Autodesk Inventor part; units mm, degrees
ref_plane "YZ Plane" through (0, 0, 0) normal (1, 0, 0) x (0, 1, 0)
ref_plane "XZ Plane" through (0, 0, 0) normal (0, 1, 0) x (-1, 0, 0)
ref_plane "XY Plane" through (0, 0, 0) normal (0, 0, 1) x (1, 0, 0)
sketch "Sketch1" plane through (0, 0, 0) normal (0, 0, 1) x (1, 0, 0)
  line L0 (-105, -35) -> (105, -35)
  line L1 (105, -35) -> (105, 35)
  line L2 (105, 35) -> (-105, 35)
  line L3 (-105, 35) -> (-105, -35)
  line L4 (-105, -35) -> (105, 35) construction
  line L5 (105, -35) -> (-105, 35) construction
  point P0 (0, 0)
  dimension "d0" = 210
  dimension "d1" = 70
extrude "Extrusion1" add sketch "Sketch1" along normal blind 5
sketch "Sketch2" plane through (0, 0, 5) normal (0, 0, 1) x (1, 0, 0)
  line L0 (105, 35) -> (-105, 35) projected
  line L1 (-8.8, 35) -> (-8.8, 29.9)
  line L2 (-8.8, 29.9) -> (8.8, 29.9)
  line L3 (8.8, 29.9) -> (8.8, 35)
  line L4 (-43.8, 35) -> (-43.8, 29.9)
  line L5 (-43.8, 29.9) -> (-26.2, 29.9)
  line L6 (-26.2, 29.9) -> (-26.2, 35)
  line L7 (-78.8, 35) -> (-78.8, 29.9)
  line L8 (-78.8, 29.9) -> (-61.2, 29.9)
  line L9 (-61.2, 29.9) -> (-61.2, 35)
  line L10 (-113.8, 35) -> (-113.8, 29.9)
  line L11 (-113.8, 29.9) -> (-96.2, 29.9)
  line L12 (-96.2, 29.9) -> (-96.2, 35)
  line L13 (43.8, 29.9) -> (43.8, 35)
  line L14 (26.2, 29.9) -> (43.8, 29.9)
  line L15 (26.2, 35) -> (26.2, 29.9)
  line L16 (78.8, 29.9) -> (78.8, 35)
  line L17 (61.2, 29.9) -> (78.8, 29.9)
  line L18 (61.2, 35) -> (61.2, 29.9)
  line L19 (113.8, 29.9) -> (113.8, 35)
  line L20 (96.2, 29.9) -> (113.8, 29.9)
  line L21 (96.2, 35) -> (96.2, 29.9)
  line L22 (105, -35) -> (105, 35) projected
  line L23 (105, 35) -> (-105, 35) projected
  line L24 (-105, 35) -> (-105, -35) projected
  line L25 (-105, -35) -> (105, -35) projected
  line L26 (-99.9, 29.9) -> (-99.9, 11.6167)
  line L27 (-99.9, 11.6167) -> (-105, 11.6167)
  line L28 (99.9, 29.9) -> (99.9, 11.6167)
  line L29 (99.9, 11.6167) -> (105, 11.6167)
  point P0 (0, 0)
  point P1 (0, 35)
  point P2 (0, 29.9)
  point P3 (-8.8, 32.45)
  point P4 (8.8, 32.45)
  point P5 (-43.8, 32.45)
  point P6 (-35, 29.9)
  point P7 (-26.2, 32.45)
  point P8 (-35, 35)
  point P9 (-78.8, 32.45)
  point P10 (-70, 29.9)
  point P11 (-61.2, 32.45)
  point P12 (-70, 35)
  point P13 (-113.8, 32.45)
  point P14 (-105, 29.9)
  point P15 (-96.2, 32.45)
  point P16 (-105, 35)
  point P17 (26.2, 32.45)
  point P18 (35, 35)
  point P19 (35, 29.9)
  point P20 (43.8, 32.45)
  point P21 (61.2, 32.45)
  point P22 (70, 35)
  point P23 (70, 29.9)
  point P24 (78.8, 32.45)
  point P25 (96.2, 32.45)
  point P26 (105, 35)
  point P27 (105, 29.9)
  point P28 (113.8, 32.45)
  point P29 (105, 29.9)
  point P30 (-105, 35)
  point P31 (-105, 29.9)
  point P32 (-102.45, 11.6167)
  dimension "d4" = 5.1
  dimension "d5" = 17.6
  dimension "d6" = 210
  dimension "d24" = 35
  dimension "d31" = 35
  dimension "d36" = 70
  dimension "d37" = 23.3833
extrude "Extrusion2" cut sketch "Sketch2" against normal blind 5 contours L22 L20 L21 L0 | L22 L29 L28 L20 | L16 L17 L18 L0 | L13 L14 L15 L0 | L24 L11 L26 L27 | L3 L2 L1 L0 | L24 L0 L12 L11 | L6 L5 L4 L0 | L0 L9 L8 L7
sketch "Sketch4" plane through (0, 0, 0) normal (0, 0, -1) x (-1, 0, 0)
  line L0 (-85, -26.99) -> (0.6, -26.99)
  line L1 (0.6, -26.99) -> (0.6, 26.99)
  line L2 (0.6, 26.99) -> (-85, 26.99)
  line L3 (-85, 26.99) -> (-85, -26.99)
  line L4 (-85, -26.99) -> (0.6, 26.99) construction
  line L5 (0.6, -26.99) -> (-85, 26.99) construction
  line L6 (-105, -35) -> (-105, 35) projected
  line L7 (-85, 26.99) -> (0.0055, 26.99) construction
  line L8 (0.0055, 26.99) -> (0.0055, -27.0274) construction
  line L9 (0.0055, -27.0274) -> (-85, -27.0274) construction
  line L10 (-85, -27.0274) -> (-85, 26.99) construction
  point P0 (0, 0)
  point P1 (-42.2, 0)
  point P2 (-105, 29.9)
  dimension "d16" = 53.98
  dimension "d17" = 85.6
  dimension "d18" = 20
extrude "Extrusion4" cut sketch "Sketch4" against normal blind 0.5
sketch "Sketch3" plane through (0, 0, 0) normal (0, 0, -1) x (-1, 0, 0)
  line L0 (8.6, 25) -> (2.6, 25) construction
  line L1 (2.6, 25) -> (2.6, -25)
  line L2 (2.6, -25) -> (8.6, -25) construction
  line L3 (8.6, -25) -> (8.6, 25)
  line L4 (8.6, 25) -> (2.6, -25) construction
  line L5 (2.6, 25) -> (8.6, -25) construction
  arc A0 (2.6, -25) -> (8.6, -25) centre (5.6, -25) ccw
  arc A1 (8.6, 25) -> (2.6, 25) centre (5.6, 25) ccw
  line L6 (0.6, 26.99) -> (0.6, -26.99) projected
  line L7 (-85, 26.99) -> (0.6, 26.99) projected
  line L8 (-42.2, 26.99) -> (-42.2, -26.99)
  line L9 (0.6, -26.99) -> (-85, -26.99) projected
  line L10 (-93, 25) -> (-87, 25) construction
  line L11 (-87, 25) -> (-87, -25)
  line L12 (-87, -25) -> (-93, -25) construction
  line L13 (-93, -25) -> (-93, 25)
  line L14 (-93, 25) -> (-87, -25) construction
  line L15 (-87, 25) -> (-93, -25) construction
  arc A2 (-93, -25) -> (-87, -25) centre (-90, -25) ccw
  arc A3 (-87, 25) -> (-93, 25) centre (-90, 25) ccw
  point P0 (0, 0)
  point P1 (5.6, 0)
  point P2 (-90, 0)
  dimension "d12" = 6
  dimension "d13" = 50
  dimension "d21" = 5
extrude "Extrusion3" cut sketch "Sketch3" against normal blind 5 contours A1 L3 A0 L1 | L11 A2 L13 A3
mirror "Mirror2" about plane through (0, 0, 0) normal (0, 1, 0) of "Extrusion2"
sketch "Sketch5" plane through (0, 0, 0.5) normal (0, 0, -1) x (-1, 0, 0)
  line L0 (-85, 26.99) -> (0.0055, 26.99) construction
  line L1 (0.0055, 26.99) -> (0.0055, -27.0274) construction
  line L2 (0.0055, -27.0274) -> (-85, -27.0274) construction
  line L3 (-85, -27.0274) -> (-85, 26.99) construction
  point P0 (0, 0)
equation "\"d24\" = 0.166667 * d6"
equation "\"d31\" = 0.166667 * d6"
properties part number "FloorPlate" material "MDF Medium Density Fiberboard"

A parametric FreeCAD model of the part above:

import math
import FreeCAD as App
import Part
import Sketcher
Q = App.Units.Quantity

doc = App.newDocument("Part")
body = doc.addObject("PartDesign::Body", "Body")

# Sketch on XY plane
sketch1 = body.newObject("Sketcher::SketchObject", "Sketch")
sketch1.AttachmentSupport = (doc.getObject("XY_Plane"), [""])
sketch1.MapMode = "FlatFace"
sketch1.addGeometry([
    Part.LineSegment(App.Vector(-105, 35, 0), App.Vector(-105, -35, 0)),
    Part.LineSegment(App.Vector(-105, -35, 0), App.Vector(105, -35, 0)),
    Part.LineSegment(App.Vector(105, -35, 0), App.Vector(105, 35, 0)),
    Part.LineSegment(App.Vector(105, 35, 0), App.Vector(-105, 35, 0)),
], False)
sketch1.addConstraint([
    Sketcher.Constraint("Coincident", 0, 2, 1, 1),
    Sketcher.Constraint("Coincident", 1, 2, 2, 1),
    Sketcher.Constraint("Coincident", 2, 2, 3, 1),
    Sketcher.Constraint("Coincident", 3, 2, 0, 1),
    Sketcher.Constraint("Vertical", 0),
    Sketcher.Constraint("Horizontal", 1),
    Sketcher.Constraint("Vertical", 2),
    Sketcher.Constraint("Horizontal", 3),
    Sketcher.Constraint("Symmetric", 0, 2, 2, 2, -1, 1),
    Sketcher.Constraint("DistanceX", 1, 1, 1, 2, Q("210 mm")),
    Sketcher.Constraint("DistanceY", 0, 2, 0, 1, Q("70 mm")),
])
pad1 = body.newObject("PartDesign::Pad", "Pad")
pad1.Profile = sketch1
pad1.Length = 5

# Sketch on XY plane
sketch2 = body.newObject("Sketcher::SketchObject", "Sketch001")
sketch2.AttachmentSupport = (doc.getObject("XY_Plane"), [""])
sketch2.MapMode = "FlatFace"
sketch2.AttachmentOffset = App.Placement(App.Vector(0, 0, 5), App.Rotation())
sketch2.addGeometry([
    Part.LineSegment(App.Vector(105, 35, 0), App.Vector(96.2, 35, 0)),  # 0
    Part.LineSegment(App.Vector(96.2, 35, 0), App.Vector(96.2, 29.9, 0)),  # 1
    Part.LineSegment(App.Vector(96.2, 29.9, 0), App.Vector(99.9, 29.9, 0)),  # 2
    Part.LineSegment(App.Vector(99.9, 29.9, 0), App.Vector(99.9, 11.6, 0)),  # 3
    Part.LineSegment(App.Vector(99.9, 11.6, 0), App.Vector(105, 11.6, 0)),  # 4
    Part.LineSegment(App.Vector(105, 11.6, 0), App.Vector(105, 35, 0)),  # 5
    Part.LineSegment(App.Vector(78.8, 29.9, 0), App.Vector(78.8, 35, 0)),  # 6
    Part.LineSegment(App.Vector(78.8, 35, 0), App.Vector(61.2, 35, 0)),  # 7
    Part.LineSegment(App.Vector(61.2, 35, 0), App.Vector(61.2, 29.9, 0)),  # 8
    Part.LineSegment(App.Vector(61.2, 29.9, 0), App.Vector(78.8, 29.9, 0)),  # 9
    Part.LineSegment(App.Vector(43.8, 29.9, 0), App.Vector(43.8, 35, 0)),  # 10
    Part.LineSegment(App.Vector(43.8, 35, 0), App.Vector(26.2, 35, 0)),  # 11
    Part.LineSegment(App.Vector(26.2, 35, 0), App.Vector(26.2, 29.9, 0)),  # 12
    Part.LineSegment(App.Vector(26.2, 29.9, 0), App.Vector(43.8, 29.9, 0)),  # 13
    Part.LineSegment(App.Vector(-105, 11.6, 0), App.Vector(-99.9, 11.6, 0)),  # 14
    Part.LineSegment(App.Vector(-99.9, 11.6, 0), App.Vector(-99.9, 29.9, 0)),  # 15
    Part.LineSegment(App.Vector(-99.9, 29.9, 0), App.Vector(-96.2, 29.9, 0)),  # 16
    Part.LineSegment(App.Vector(-96.2, 29.9, 0), App.Vector(-96.2, 35, 0)),  # 17
    Part.LineSegment(App.Vector(-96.2, 35, 0), App.Vector(-105, 35, 0)),  # 18
    Part.LineSegment(App.Vector(-105, 35, 0), App.Vector(-105, 11.6, 0)),  # 19
    Part.LineSegment(App.Vector(8.8, 29.9, 0), App.Vector(8.8, 35, 0)),  # 20
    Part.LineSegment(App.Vector(8.8, 35, 0), App.Vector(-8.8, 35, 0)),  # 21
    Part.LineSegment(App.Vector(-8.8, 35, 0), App.Vector(-8.8, 29.9, 0)),  # 22
    Part.LineSegment(App.Vector(-8.8, 29.9, 0), App.Vector(8.8, 29.9, 0)),  # 23
    Part.LineSegment(App.Vector(-26.2, 29.9, 0), App.Vector(-26.2, 35, 0)),  # 24
    Part.LineSegment(App.Vector(-26.2, 35, 0), App.Vector(-43.8, 35, 0)),  # 25
    Part.LineSegment(App.Vector(-43.8, 35, 0), App.Vector(-43.8, 29.9, 0)),  # 26
    Part.LineSegment(App.Vector(-43.8, 29.9, 0), App.Vector(-26.2, 29.9, 0)),  # 27
    Part.LineSegment(App.Vector(-61.2, 35, 0), App.Vector(-78.8, 35, 0)),  # 28
    Part.LineSegment(App.Vector(-78.8, 35, 0), App.Vector(-78.8, 29.9, 0)),  # 29
    Part.LineSegment(App.Vector(-78.8, 29.9, 0), App.Vector(-61.2, 29.9, 0)),  # 30
    Part.LineSegment(App.Vector(-61.2, 29.9, 0), App.Vector(-61.2, 35, 0)),  # 31
], False)
sketch2.addConstraint([
    Sketcher.Constraint("Coincident", 0, 2, 1, 1),
    Sketcher.Constraint("Coincident", 1, 2, 2, 1),
    Sketcher.Constraint("Coincident", 2, 2, 3, 1),
    Sketcher.Constraint("Coincident", 3, 2, 4, 1),
    Sketcher.Constraint("Coincident", 4, 2, 5, 1),
    Sketcher.Constraint("Coincident", 5, 2, 0, 1),
    Sketcher.Constraint("Coincident", 6, 2, 7, 1),
    Sketcher.Constraint("Coincident", 7, 2, 8, 1),
    Sketcher.Constraint("Coincident", 8, 2, 9, 1),
    Sketcher.Constraint("Coincident", 9, 2, 6, 1),
    Sketcher.Constraint("Coincident", 10, 2, 11, 1),
    Sketcher.Constraint("Coincident", 11, 2, 12, 1),
    Sketcher.Constraint("Coincident", 12, 2, 13, 1),
    Sketcher.Constraint("Coincident", 13, 2, 10, 1),
    Sketcher.Constraint("Coincident", 14, 2, 15, 1),
    Sketcher.Constraint("Coincident", 15, 2, 16, 1),
    Sketcher.Constraint("Coincident", 16, 2, 17, 1),
    Sketcher.Constraint("Coincident", 17, 2, 18, 1),
    Sketcher.Constraint("Coincident", 18, 2, 19, 1),
    Sketcher.Constraint("Coincident", 19, 2, 14, 1),
    Sketcher.Constraint("Coincident", 20, 2, 21, 1),
    Sketcher.Constraint("Coincident", 21, 2, 22, 1),
    Sketcher.Constraint("Coincident", 22, 2, 23, 1),
    Sketcher.Constraint("Coincident", 23, 2, 20, 1),
    Sketcher.Constraint("Coincident", 24, 2, 25, 1),
    Sketcher.Constraint("Coincident", 25, 2, 26, 1),
    Sketcher.Constraint("Coincident", 26, 2, 27, 1),
    Sketcher.Constraint("Coincident", 27, 2, 24, 1),
    Sketcher.Constraint("Coincident", 28, 2, 29, 1),
    Sketcher.Constraint("Coincident", 29, 2, 30, 1),
    Sketcher.Constraint("Coincident", 30, 2, 31, 1),
    Sketcher.Constraint("Coincident", 31, 2, 28, 1),
    Sketcher.Constraint("Horizontal", 0),
    Sketcher.Constraint("Vertical", 1),
    Sketcher.Constraint("Horizontal", 2),
    Sketcher.Constraint("Vertical", 3),
    Sketcher.Constraint("Horizontal", 4),
    Sketcher.Constraint("Vertical", 5),
    Sketcher.Constraint("Vertical", 6),
    Sketcher.Constraint("Horizontal", 7),
    Sketcher.Constraint("Vertical", 8),
    Sketcher.Constraint("Horizontal", 9),
    Sketcher.Constraint("Vertical", 10),
    Sketcher.Constraint("Horizontal", 11),
    Sketcher.Constraint("Vertical", 12),
    Sketcher.Constraint("Horizontal", 13),
    Sketcher.Constraint("Horizontal", 14),
    Sketcher.Constraint("Vertical", 15),
    Sketcher.Constraint("Horizontal", 16),
    Sketcher.Constraint("Vertical", 17),
    Sketcher.Constraint("Horizontal", 18),
    Sketcher.Constraint("Vertical", 19),
    Sketcher.Constraint("Vertical", 20),
    Sketcher.Constraint("Horizontal", 21),
    Sketcher.Constraint("Vertical", 22),
    Sketcher.Constraint("Horizontal", 23),
    Sketcher.Constraint("Vertical", 24),
    Sketcher.Constraint("Horizontal", 25),
    Sketcher.Constraint("Vertical", 26),
    Sketcher.Constraint("Horizontal", 27),
    Sketcher.Constraint("Horizontal", 28),
    Sketcher.Constraint("Vertical", 29),
    Sketcher.Constraint("Horizontal", 30),
    Sketcher.Constraint("Vertical", 31),
    Sketcher.Constraint("Symmetric", 3, 2, 14, 2, -2),
    Sketcher.Constraint("Symmetric", 1, 2, 16, 2, -2),
    Sketcher.Constraint("Symmetric", 5, 2, 18, 2, -2),
    Sketcher.Constraint("Symmetric", 11, 2, 24, 2, -2),
    Sketcher.Constraint("Symmetric", 13, 2, 26, 2, -2),
    Sketcher.Constraint("Symmetric", 6, 2, 28, 2, -2),
    Sketcher.Constraint("Symmetric", 8, 2, 30, 2, -2),
    Sketcher.Constraint("Horizontal", 5, 2, 6, 2),
    Sketcher.Constraint("Horizontal", 2, 2, 8, 2),
    Sketcher.Constraint("Horizontal", 7, 2, 10, 2),
    Sketcher.Constraint("Horizontal", 9, 2, 12, 2),
    Sketcher.Constraint("Horizontal", 18, 2, 20, 2),
    Sketcher.Constraint("Horizontal", 16, 2, 22, 2),
    Sketcher.Constraint("Equal", 9, 11),
    Sketcher.Constraint("Equal", 13, 21),
    Sketcher.Constraint("Equal", 14, 1),
    Sketcher.Constraint("DistanceX", 4, 1, 4, 2, Q("5.1 mm")),
    Sketcher.Constraint("DistanceX", 7, 2, 7, 1, Q("17.6 mm")),
    Sketcher.Constraint("DistanceY", -1, 1, 0, 2, Q("35 mm")),
    Sketcher.Constraint("DistanceX", 7, 2, 0, 2, Q("35 mm")),
    Sketcher.Constraint("DistanceX", 10, 2, 6, 2, Q("35 mm")),
    Sketcher.Constraint("DistanceX", 20, 2, 10, 2, Q("35 mm")),
    Sketcher.Constraint("DistanceX", 24, 2, 20, 2, Q("35 mm")),
    Sketcher.Constraint("DistanceX", 0, 2, 0, 1, Q("8.8 mm")),
    Sketcher.Constraint("DistanceY", 5, 1, 5, 2, Q("23.3833 mm")),
])
pocket1 = body.newObject("PartDesign::Pocket", "Pocket")
pocket1.Profile = sketch2
pocket1.Length = 5

# Sketch on XY plane
sketch3 = body.newObject("Sketcher::SketchObject", "Sketch002")
sketch3.AttachmentSupport = (doc.getObject("XY_Plane"), [""])
sketch3.MapMode = "FlatFace"
sketch3.addGeometry([
    Part.LineSegment(App.Vector(85, 27, 0), App.Vector(85, -27, 0)),
    Part.LineSegment(App.Vector(85, -27, 0), App.Vector(-1, -27, 0)),
    Part.LineSegment(App.Vector(-1, -27, 0), App.Vector(-1, 27, 0)),
    Part.LineSegment(App.Vector(-1, 27, 0), App.Vector(85, 27, 0)),
], False)
sketch3.addConstraint([
    Sketcher.Constraint("Coincident", 0, 2, 1, 1),
    Sketcher.Constraint("Coincident", 1, 2, 2, 1),
    Sketcher.Constraint("Coincident", 2, 2, 3, 1),
    Sketcher.Constraint("Coincident", 3, 2, 0, 1),
    Sketcher.Constraint("Vertical", 0),
    Sketcher.Constraint("Horizontal", 1),
    Sketcher.Constraint("Vertical", 2),
    Sketcher.Constraint("Horizontal", 3),
    Sketcher.Constraint("DistanceX", 1, 2, 1, 1, Q("85.6 mm")),
    Sketcher.Constraint("DistanceY", 0, 2, 0, 1, Q("53.98 mm")),
    Sketcher.Constraint("DistanceX", -1, 1, 0, 2, Q("85 mm")),
    Sketcher.Constraint("DistanceY", 0, 2, -1, 1, Q("26.99 mm")),
])
pocket2 = body.newObject("PartDesign::Pocket", "Pocket001")
pocket2.Profile = sketch3
pocket2.Length = 0.5
pocket2.Reversed = True

# Sketch on XY plane
sketch4 = body.newObject("Sketcher::SketchObject", "Sketch003")
sketch4.AttachmentSupport = (doc.getObject("XY_Plane"), [""])
sketch4.MapMode = "FlatFace"
sketch4.addGeometry([
    Part.ArcOfCircle(Part.Circle(App.Vector(-5.6, 25, 0), App.Vector(0, 0, 1), 3), math.radians(0), math.radians(180)),  # 0
    Part.LineSegment(App.Vector(-2.6, 25, 0), App.Vector(-2.6, -25, 0)),  # 1
    Part.ArcOfCircle(Part.Circle(App.Vector(-5.6, -25, 0), App.Vector(0, 0, 1), 3), math.radians(180), math.radians(360)),  # 2
    Part.LineSegment(App.Vector(-8.6, -25, 0), App.Vector(-8.6, 25, 0)),  # 3
    Part.LineSegment(App.Vector(87, -25, 0), App.Vector(87, 25, 0)),  # 4
    Part.ArcOfCircle(Part.Circle(App.Vector(90, 25, 0), App.Vector(0, 0, 1), 3), math.radians(0), math.radians(180)),  # 5
    Part.LineSegment(App.Vector(93, 25, 0), App.Vector(93, -25, 0)),  # 6
    Part.ArcOfCircle(Part.Circle(App.Vector(90, -25, 0), App.Vector(0, 0, 1), 3), math.radians(180), math.radians(360)),  # 7
], False)
sketch4.addConstraint([
    Sketcher.Constraint("Tangent", 0, 1, 1, 1),
    Sketcher.Constraint("Tangent", 1, 2, 2, 2),
    Sketcher.Constraint("Tangent", 2, 1, 3, 1),
    Sketcher.Constraint("Tangent", 3, 2, 0, 2),
    Sketcher.Constraint("Tangent", 4, 2, 5, 2),
    Sketcher.Constraint("Tangent", 5, 1, 6, 1),
    Sketcher.Constraint("Tangent", 6, 2, 7, 2),
    Sketcher.Constraint("Tangent", 7, 1, 4, 1),
    Sketcher.Constraint("Vertical", 1),
    Sketcher.Constraint("Vertical", 3),
    Sketcher.Constraint("Vertical", 4),
    Sketcher.Constraint("Vertical", 6),
    Sketcher.Constraint("Equal", 2, 5),
    Sketcher.Constraint("Horizontal", 0, 3, 5, 3),
    Sketcher.Constraint("Horizontal", 2, 3, 7, 3),
    Sketcher.Constraint("Radius", 0, Q("3 mm")),
    Sketcher.Constraint("DistanceY", 1, 2, 1, 1, Q("50 mm")),
    Sketcher.Constraint("DistanceY", -1, 1, 0, 3, Q("25 mm")),
    Sketcher.Constraint("DistanceX", -1, 1, 5, 3, Q("90 mm")),
    Sketcher.Constraint("DistanceX", 0, 3, -1, 1, Q("5.6 mm")),
])
pocket3 = body.newObject("PartDesign::Pocket", "Pocket002")
pocket3.Profile = sketch4
pocket3.Length = 5
pocket3.Reversed = True
doc.recompute()

mirrored = body.newObject("PartDesign::Mirrored", "Mirrored")
mirrored.Originals = [pocket1]
mirrored.MirrorPlane = (doc.getObject("XZ_Plane"), [""])
body.Tip = mirrored

doc.recompute()
